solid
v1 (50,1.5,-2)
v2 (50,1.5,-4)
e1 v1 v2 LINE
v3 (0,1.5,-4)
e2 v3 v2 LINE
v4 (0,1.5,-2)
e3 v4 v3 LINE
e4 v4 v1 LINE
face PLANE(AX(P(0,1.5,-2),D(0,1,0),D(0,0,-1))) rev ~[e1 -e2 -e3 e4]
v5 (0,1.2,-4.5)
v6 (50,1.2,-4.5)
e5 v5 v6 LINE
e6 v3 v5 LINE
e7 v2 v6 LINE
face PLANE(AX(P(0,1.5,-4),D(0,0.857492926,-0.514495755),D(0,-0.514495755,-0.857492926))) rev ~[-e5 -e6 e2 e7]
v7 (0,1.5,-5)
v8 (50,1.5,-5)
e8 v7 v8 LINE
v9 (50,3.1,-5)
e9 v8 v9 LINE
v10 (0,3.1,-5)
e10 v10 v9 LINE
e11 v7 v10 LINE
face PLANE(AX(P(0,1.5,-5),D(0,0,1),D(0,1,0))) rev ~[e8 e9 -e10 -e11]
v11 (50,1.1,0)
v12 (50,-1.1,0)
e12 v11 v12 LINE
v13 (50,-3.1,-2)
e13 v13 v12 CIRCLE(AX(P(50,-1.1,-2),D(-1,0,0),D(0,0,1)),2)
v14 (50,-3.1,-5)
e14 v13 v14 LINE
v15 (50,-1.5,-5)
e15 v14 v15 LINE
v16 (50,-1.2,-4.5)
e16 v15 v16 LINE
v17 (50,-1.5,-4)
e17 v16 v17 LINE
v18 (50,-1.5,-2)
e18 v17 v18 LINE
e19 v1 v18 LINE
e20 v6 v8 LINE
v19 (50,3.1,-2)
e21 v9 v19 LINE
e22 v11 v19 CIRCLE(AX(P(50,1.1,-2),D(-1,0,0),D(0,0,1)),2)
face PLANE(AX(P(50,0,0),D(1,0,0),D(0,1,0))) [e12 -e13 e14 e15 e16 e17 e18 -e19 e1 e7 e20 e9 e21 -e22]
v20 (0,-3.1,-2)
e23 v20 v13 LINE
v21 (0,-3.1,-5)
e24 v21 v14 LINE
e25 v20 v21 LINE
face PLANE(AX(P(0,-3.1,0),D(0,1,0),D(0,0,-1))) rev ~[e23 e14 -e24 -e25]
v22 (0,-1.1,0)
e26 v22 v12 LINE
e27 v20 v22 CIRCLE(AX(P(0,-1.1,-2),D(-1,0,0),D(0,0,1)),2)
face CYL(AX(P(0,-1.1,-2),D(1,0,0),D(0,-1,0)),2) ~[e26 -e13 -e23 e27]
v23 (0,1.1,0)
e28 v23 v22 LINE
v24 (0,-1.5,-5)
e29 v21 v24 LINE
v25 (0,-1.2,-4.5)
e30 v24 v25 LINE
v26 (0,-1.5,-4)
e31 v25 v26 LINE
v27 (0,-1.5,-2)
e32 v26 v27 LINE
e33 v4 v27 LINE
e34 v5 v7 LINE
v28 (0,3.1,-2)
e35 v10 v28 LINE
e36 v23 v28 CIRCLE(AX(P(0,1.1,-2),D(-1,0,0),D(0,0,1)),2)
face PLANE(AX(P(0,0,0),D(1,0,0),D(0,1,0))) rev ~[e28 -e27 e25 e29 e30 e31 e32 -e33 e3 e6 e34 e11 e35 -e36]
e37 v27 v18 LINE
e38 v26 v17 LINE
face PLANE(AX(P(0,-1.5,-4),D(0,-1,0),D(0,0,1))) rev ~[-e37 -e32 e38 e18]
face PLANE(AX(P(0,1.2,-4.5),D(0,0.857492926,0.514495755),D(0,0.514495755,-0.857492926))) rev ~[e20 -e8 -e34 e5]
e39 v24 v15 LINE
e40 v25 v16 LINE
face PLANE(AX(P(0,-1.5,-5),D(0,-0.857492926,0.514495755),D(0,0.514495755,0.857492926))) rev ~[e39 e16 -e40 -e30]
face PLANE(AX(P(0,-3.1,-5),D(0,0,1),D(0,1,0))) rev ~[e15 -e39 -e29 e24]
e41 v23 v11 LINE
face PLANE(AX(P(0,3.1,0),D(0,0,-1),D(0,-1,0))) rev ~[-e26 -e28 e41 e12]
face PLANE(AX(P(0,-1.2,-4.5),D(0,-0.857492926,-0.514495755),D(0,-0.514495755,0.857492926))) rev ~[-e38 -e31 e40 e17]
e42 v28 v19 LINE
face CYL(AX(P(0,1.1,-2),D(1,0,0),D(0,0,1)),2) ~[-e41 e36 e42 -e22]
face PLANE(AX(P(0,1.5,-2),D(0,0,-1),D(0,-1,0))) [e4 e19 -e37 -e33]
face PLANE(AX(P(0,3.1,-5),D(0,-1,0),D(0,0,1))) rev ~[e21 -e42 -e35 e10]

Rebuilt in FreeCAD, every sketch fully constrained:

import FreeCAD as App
import Part
import Sketcher
from FreeCAD import Vector
Q = App.Units.Quantity


def edges_at(feature, points):
    """Names of the edges that pass closest to the given points."""
    edges = feature.Shape.Edges
    near = lambda p: min(range(len(edges)), key=lambda i: edges[i].distToShape(Part.Vertex(*p))[0])
    return sorted({f"Edge{near(p) + 1}" for p in points})


def add_polygon(sketch, points):
    """Adds a closed chain of lines whose ends are joined by coincident constraints."""
    first, n = sketch.GeometryCount, len(points)
    for a, b in zip(points, points[1:] + points[:1]):
        sketch.addGeometry(Part.LineSegment(App.Vector(*a, 0), App.Vector(*b, 0)), False)
    for i in range(n):
        sketch.addConstraint(Sketcher.Constraint("Coincident", first + i, 2, first + (i + 1) % n, 1))

doc = App.newDocument("Part")
body = doc.addObject("PartDesign::Body", "Body")

# Sketch on YZ plane
sketch1 = body.newObject("Sketcher::SketchObject", "Sketch")
sketch1.AttachmentSupport = (doc.getObject("YZ_Plane"), [""])
sketch1.MapMode = "FlatFace"
add_polygon(sketch1, [(-1.5, -2), (1.5, -2), (1.5, -4), (1.2, -4.5), (1.5, -5), (3.1, -5), (3.1, 0), (-3.1, 0), (-3.1, -5), (-1.5, -5), (-1.2, -4.5), (-1.5, -4)])  # lines 0-11
sketch1.addConstraint([
    Sketcher.Constraint("Horizontal", 0),
    Sketcher.Constraint("Vertical", 1),
    Sketcher.Constraint("Horizontal", 4),
    Sketcher.Constraint("Vertical", 5),
    Sketcher.Constraint("Horizontal", 6),
    Sketcher.Constraint("Vertical", 7),
    Sketcher.Constraint("Horizontal", 8),
    Sketcher.Constraint("Vertical", 11),
    Sketcher.Constraint("Symmetric", 5, 2, 6, 2, -1, 1),
    Sketcher.Constraint("Symmetric", 3, 2, 8, 2, -2),
    Sketcher.Constraint("Symmetric", 2, 2, 9, 2, -2),
    Sketcher.Constraint("Symmetric", 1, 2, 10, 2, -2),
    Sketcher.Constraint("Parallel", 2, 9),
    Sketcher.Constraint("Vertical", 1, 2, 3, 2),
    Sketcher.Constraint("DistanceX", 0, 1, 0, 2, Q("3 mm")),
    Sketcher.Constraint("DistanceY", 1, 2, 1, 1, Q("2 mm")),
    Sketcher.Constraint("DistanceX", 4, 1, 4, 2, Q("1.6 mm")),
    Sketcher.Constraint("DistanceY", 0, 2, -1, 1, Q("2 mm")),
    Sketcher.Constraint("DistanceY", 3, 2, 0, 2, Q("3 mm")),
    Sketcher.Constraint("DistanceX", 2, 2, 1, 2, Q("0.3 mm")),
])
pad1 = body.newObject("PartDesign::Pad", "Pad")
pad1.Profile = sketch1
pad1.Length = 50
doc.recompute()

fillet = body.newObject("PartDesign::Fillet", "Fillet")
fillet.Base = (pad1, edges_at(pad1, [(25, 3.1, 0), (25, -3.1, 0)]))
fillet.Radius = 2

doc.recompute()
